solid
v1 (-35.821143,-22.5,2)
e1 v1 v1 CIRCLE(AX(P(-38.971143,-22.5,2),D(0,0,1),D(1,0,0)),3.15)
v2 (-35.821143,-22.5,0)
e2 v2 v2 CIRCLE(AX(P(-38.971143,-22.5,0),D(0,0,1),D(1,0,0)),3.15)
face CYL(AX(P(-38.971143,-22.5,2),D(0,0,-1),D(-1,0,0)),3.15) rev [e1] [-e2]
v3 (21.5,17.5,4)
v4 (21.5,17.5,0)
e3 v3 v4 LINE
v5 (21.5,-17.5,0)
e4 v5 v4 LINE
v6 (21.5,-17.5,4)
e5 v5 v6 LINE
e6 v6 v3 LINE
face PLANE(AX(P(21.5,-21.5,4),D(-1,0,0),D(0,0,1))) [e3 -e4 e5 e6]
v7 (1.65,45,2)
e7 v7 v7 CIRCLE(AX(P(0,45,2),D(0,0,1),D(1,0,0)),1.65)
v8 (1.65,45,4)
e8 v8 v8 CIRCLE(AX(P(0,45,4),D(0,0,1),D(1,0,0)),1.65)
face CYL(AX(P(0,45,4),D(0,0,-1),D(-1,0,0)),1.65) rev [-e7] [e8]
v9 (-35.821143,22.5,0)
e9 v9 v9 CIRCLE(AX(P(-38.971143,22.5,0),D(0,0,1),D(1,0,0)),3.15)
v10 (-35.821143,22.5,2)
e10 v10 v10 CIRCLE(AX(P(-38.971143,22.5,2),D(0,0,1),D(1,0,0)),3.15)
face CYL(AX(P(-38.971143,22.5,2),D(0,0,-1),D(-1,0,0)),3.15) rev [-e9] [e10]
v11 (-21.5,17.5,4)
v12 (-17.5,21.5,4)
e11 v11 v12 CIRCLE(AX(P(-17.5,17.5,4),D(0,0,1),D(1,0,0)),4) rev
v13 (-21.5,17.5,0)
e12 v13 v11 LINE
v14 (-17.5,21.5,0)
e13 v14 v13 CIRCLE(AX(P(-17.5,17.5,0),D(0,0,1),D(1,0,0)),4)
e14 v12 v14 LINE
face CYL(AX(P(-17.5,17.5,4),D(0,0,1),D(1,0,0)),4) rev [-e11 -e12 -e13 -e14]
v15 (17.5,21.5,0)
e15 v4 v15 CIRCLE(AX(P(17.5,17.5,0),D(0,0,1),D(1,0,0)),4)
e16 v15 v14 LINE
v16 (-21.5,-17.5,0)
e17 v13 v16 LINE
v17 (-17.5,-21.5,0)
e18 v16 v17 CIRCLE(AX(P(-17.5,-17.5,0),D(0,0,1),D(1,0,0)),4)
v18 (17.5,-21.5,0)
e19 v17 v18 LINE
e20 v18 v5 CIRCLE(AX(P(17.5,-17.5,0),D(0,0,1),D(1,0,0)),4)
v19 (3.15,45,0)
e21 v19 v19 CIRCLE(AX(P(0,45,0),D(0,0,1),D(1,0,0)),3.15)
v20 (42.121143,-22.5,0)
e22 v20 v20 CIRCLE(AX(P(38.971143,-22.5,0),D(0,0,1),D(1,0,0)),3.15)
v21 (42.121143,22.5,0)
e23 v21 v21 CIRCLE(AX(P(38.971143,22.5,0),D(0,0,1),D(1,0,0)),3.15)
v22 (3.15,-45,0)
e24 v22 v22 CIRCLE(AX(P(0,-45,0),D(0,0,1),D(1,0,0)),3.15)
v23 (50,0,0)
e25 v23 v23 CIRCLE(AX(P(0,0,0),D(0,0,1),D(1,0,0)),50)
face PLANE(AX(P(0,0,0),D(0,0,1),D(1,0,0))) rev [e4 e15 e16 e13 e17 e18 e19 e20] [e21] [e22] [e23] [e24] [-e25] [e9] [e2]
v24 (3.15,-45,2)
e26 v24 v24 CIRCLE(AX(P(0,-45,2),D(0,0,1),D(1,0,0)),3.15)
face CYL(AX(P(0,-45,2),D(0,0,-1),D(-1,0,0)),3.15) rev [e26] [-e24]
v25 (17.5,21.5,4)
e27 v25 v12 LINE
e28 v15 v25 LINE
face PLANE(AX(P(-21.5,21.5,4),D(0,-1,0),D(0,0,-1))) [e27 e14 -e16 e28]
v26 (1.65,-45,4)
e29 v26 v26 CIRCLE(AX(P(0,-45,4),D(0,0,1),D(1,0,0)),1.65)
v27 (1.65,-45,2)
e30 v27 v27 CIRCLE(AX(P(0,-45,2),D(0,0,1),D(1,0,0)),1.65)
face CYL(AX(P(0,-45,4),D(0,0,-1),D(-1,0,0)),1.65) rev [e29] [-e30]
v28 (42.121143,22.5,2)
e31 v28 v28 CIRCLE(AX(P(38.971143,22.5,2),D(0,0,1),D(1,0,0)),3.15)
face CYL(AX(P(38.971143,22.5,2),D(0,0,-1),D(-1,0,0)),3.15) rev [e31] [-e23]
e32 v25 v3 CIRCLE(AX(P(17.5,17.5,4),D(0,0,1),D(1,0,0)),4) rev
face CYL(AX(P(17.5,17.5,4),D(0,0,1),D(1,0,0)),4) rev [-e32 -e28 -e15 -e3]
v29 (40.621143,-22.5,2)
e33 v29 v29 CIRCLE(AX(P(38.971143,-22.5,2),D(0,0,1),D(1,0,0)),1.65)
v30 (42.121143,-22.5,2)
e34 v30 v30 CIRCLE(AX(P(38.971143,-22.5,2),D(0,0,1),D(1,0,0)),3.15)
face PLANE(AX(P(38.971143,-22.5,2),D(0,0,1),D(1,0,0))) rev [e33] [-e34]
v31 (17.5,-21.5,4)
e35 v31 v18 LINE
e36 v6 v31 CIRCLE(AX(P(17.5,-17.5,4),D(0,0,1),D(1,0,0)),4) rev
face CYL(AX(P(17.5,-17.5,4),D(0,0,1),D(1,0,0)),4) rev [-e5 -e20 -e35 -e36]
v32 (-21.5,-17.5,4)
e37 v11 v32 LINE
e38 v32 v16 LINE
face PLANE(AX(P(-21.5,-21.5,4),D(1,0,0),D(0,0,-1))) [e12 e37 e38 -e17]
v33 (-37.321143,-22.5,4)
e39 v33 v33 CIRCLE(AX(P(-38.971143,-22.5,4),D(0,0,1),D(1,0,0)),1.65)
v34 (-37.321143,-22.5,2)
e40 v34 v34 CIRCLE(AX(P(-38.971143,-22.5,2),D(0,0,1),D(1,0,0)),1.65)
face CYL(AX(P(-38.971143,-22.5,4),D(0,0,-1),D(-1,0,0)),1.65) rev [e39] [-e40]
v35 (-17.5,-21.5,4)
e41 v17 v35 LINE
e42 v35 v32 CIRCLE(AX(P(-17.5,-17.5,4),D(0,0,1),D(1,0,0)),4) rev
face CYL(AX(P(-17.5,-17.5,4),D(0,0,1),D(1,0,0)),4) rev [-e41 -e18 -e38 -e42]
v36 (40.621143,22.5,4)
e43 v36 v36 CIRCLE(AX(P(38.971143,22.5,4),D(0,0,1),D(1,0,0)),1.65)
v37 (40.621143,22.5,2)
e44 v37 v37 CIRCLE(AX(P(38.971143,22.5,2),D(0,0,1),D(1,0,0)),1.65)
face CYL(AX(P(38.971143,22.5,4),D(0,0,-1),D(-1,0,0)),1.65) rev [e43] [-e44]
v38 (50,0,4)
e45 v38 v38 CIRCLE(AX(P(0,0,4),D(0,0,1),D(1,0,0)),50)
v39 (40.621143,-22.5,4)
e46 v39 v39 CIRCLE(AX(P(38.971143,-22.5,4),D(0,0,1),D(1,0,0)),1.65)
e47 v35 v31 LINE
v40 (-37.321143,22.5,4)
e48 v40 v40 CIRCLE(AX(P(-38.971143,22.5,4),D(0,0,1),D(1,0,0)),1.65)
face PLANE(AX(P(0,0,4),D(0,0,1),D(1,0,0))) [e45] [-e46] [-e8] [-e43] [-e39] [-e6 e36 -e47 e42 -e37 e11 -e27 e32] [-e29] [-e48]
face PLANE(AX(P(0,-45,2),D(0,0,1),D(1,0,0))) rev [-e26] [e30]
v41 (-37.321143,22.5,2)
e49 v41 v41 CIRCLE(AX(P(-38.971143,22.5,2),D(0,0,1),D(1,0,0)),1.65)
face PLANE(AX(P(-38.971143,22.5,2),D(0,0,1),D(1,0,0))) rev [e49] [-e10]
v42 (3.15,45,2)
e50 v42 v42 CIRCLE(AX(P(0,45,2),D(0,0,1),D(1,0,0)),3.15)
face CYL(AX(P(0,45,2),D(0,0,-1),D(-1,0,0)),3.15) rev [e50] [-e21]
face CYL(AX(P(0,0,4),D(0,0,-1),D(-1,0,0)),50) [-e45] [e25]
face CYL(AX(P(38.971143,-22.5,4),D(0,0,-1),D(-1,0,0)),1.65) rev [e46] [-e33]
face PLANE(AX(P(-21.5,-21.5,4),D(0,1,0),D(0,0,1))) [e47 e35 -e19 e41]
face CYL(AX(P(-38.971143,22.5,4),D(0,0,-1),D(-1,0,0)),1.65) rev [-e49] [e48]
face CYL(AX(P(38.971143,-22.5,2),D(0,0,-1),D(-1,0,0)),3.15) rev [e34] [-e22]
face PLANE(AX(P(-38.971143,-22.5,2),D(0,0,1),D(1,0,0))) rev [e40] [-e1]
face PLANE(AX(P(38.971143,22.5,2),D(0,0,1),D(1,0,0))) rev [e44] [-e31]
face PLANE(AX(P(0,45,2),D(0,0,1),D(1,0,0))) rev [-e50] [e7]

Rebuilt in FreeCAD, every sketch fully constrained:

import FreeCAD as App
import Part
import Sketcher

V = App.Vector
Q = App.Units.Quantity


def edges_at(feature, points):
    """Names of the edges that pass closest to the given points."""
    edges = feature.Shape.Edges
    near = lambda p: min(range(len(edges)), key=lambda i: edges[i].distToShape(Part.Vertex(*p))[0])
    return sorted({f"Edge{near(p) + 1}" for p in points})


def add_polygon(sketch, points):
    """Adds a closed chain of lines whose ends are joined by coincident constraints."""
    first, n = sketch.GeometryCount, len(points)
    for a, b in zip(points, points[1:] + points[:1]):
        sketch.addGeometry(Part.LineSegment(App.Vector(*a, 0), App.Vector(*b, 0)), False)
    for i in range(n):
        sketch.addConstraint(Sketcher.Constraint("Coincident", first + i, 2, first + (i + 1) % n, 1))

doc = App.newDocument("Part")
body = doc.addObject("PartDesign::Body", "Body")

# Sketch on XY plane
sketch1 = body.newObject("Sketcher::SketchObject", "Sketch")
sketch1.AttachmentSupport = (doc.getObject("XY_Plane"), [""])
sketch1.MapMode = "FlatFace"
sketch1.addGeometry(Part.Circle(V(0, 0, 0), V(0, 0, 1), 50), False)  # 0
sketch1.addGeometry(Part.Circle(V(-39, -22.5, 0), V(0, 0, 1), 1.6), False)  # 1
sketch1.addGeometry(Part.Circle(V(0, -45, 0), V(0, 0, 1), 1.6), False)  # 2
add_polygon(sketch1, [(21.5, -21.5), (-21.5, -21.5), (-21.5, 21.5), (21.5, 21.5)])  # lines 3-6
sketch1.addGeometry(Part.Circle(V(39, -22.5, 0), V(0, 0, 1), 1.6), False)  # 7
sketch1.addGeometry(Part.Circle(V(-39, 22.5, 0), V(0, 0, 1), 1.6), False)  # 8
sketch1.addGeometry(Part.Circle(V(39, 22.5, 0), V(0, 0, 1), 1.6), False)  # 9
sketch1.addGeometry(Part.Circle(V(0, 45, 0), V(0, 0, 1), 1.6), False)  # 10
sketch1.addConstraint([
    Sketcher.Constraint("Horizontal", 3),
    Sketcher.Constraint("Vertical", 4),
    Sketcher.Constraint("Horizontal", 5),
    Sketcher.Constraint("Vertical", 6),
    Sketcher.Constraint("Coincident", 0, 3, -1, 1),
    Sketcher.Constraint("Equal", 1, 2),
    Sketcher.Constraint("Equal", 2, 7),
    Sketcher.Constraint("Equal", 7, 8),
    Sketcher.Constraint("Equal", 8, 9),
    Sketcher.Constraint("Equal", 9, 10),
    Sketcher.Constraint("Symmetric", 7, 3, 8, 3, -1, 1),
    Sketcher.Constraint("Symmetric", 1, 3, 9, 3, -1, 1),
    Sketcher.Constraint("Symmetric", 2, 3, 10, 3, -1, 1),
    Sketcher.Constraint("Symmetric", 3, 2, 5, 2, -1, 1),
    Sketcher.Constraint("Symmetric", 1, 3, 7, 3, -2),
    Sketcher.Constraint("PointOnObject", 2, 3, -2),
    Sketcher.Constraint("Equal", 5, 4),
    Sketcher.Constraint("Diameter", 0, Q("100 mm")),
    Sketcher.Constraint("Diameter", 1, Q("3.3 mm")),
    Sketcher.Constraint("DistanceX", 3, 2, 3, 1, Q("43 mm")),
    Sketcher.Constraint("DistanceY", 2, 3, -1, 1, Q("45 mm")),
    Sketcher.Constraint("DistanceY", 1, 3, 8, 3, Q("45 mm")),
    Sketcher.Constraint("DistanceX", 1, 3, -1, 1, Q("38.971143 mm")),
])
pad1 = body.newObject("PartDesign::Pad", "Pad")
pad1.Profile = sketch1
pad1.Length = 4

# Sketch on XY plane
sketch2 = body.newObject("Sketcher::SketchObject", "Sketch001")
sketch2.AttachmentSupport = (doc.getObject("XY_Plane"), [""])
sketch2.MapMode = "FlatFace"
sketch2.addGeometry([
    Part.Circle(V(0, 45, 0), V(0, 0, 1), 3.1),  # 0
    Part.Circle(V(39, 22.5, 0), V(0, 0, 1), 3.1),  # 1
    Part.Circle(V(39, -22.5, 0), V(0, 0, 1), 3.1),  # 2
    Part.Circle(V(0, -45, 0), V(0, 0, 1), 3.1),  # 3
    Part.Circle(V(-39, -22.5, 0), V(0, 0, 1), 3.1),  # 4
    Part.Circle(V(-39, 22.5, 0), V(0, 0, 1), 3.1),  # 5
], False)
sketch2.addConstraint([
    Sketcher.Constraint("Equal", 0, 1),
    Sketcher.Constraint("Equal", 1, 2),
    Sketcher.Constraint("Equal", 2, 3),
    Sketcher.Constraint("Equal", 3, 4),
    Sketcher.Constraint("Equal", 4, 5),
    Sketcher.Constraint("Symmetric", 0, 3, 3, 3, -1, 1),
    Sketcher.Constraint("Symmetric", 1, 3, 4, 3, -1, 1),
    Sketcher.Constraint("Symmetric", 2, 3, 5, 3, -1, 1),
    Sketcher.Constraint("Symmetric", 2, 3, 4, 3, -2),
    Sketcher.Constraint("PointOnObject", 0, 3, -2),
    Sketcher.Constraint("Diameter", 0, Q("6.3 mm")),
    Sketcher.Constraint("DistanceY", -1, 1, 0, 3, Q("45 mm")),
    Sketcher.Constraint("DistanceY", 2, 3, 1, 3, Q("45 mm")),
    Sketcher.Constraint("DistanceX", -1, 1, 1, 3, Q("38.971143 mm")),
])
pocket1 = body.newObject("PartDesign::Pocket", "Pocket")
pocket1.Profile = sketch2
pocket1.Length = 2
pocket1.Reversed = True
doc.recompute()

fillet = body.newObject("PartDesign::Fillet", "Fillet")
fillet.Base = (pocket1, edges_at(pocket1, [
    (21.5, -21.5, 2),
    (21.5, 21.5, 2),
    (-21.5, 21.5, 2),
    (-21.5, -21.5, 2),
]))
fillet.Radius = 4

doc.recompute()
